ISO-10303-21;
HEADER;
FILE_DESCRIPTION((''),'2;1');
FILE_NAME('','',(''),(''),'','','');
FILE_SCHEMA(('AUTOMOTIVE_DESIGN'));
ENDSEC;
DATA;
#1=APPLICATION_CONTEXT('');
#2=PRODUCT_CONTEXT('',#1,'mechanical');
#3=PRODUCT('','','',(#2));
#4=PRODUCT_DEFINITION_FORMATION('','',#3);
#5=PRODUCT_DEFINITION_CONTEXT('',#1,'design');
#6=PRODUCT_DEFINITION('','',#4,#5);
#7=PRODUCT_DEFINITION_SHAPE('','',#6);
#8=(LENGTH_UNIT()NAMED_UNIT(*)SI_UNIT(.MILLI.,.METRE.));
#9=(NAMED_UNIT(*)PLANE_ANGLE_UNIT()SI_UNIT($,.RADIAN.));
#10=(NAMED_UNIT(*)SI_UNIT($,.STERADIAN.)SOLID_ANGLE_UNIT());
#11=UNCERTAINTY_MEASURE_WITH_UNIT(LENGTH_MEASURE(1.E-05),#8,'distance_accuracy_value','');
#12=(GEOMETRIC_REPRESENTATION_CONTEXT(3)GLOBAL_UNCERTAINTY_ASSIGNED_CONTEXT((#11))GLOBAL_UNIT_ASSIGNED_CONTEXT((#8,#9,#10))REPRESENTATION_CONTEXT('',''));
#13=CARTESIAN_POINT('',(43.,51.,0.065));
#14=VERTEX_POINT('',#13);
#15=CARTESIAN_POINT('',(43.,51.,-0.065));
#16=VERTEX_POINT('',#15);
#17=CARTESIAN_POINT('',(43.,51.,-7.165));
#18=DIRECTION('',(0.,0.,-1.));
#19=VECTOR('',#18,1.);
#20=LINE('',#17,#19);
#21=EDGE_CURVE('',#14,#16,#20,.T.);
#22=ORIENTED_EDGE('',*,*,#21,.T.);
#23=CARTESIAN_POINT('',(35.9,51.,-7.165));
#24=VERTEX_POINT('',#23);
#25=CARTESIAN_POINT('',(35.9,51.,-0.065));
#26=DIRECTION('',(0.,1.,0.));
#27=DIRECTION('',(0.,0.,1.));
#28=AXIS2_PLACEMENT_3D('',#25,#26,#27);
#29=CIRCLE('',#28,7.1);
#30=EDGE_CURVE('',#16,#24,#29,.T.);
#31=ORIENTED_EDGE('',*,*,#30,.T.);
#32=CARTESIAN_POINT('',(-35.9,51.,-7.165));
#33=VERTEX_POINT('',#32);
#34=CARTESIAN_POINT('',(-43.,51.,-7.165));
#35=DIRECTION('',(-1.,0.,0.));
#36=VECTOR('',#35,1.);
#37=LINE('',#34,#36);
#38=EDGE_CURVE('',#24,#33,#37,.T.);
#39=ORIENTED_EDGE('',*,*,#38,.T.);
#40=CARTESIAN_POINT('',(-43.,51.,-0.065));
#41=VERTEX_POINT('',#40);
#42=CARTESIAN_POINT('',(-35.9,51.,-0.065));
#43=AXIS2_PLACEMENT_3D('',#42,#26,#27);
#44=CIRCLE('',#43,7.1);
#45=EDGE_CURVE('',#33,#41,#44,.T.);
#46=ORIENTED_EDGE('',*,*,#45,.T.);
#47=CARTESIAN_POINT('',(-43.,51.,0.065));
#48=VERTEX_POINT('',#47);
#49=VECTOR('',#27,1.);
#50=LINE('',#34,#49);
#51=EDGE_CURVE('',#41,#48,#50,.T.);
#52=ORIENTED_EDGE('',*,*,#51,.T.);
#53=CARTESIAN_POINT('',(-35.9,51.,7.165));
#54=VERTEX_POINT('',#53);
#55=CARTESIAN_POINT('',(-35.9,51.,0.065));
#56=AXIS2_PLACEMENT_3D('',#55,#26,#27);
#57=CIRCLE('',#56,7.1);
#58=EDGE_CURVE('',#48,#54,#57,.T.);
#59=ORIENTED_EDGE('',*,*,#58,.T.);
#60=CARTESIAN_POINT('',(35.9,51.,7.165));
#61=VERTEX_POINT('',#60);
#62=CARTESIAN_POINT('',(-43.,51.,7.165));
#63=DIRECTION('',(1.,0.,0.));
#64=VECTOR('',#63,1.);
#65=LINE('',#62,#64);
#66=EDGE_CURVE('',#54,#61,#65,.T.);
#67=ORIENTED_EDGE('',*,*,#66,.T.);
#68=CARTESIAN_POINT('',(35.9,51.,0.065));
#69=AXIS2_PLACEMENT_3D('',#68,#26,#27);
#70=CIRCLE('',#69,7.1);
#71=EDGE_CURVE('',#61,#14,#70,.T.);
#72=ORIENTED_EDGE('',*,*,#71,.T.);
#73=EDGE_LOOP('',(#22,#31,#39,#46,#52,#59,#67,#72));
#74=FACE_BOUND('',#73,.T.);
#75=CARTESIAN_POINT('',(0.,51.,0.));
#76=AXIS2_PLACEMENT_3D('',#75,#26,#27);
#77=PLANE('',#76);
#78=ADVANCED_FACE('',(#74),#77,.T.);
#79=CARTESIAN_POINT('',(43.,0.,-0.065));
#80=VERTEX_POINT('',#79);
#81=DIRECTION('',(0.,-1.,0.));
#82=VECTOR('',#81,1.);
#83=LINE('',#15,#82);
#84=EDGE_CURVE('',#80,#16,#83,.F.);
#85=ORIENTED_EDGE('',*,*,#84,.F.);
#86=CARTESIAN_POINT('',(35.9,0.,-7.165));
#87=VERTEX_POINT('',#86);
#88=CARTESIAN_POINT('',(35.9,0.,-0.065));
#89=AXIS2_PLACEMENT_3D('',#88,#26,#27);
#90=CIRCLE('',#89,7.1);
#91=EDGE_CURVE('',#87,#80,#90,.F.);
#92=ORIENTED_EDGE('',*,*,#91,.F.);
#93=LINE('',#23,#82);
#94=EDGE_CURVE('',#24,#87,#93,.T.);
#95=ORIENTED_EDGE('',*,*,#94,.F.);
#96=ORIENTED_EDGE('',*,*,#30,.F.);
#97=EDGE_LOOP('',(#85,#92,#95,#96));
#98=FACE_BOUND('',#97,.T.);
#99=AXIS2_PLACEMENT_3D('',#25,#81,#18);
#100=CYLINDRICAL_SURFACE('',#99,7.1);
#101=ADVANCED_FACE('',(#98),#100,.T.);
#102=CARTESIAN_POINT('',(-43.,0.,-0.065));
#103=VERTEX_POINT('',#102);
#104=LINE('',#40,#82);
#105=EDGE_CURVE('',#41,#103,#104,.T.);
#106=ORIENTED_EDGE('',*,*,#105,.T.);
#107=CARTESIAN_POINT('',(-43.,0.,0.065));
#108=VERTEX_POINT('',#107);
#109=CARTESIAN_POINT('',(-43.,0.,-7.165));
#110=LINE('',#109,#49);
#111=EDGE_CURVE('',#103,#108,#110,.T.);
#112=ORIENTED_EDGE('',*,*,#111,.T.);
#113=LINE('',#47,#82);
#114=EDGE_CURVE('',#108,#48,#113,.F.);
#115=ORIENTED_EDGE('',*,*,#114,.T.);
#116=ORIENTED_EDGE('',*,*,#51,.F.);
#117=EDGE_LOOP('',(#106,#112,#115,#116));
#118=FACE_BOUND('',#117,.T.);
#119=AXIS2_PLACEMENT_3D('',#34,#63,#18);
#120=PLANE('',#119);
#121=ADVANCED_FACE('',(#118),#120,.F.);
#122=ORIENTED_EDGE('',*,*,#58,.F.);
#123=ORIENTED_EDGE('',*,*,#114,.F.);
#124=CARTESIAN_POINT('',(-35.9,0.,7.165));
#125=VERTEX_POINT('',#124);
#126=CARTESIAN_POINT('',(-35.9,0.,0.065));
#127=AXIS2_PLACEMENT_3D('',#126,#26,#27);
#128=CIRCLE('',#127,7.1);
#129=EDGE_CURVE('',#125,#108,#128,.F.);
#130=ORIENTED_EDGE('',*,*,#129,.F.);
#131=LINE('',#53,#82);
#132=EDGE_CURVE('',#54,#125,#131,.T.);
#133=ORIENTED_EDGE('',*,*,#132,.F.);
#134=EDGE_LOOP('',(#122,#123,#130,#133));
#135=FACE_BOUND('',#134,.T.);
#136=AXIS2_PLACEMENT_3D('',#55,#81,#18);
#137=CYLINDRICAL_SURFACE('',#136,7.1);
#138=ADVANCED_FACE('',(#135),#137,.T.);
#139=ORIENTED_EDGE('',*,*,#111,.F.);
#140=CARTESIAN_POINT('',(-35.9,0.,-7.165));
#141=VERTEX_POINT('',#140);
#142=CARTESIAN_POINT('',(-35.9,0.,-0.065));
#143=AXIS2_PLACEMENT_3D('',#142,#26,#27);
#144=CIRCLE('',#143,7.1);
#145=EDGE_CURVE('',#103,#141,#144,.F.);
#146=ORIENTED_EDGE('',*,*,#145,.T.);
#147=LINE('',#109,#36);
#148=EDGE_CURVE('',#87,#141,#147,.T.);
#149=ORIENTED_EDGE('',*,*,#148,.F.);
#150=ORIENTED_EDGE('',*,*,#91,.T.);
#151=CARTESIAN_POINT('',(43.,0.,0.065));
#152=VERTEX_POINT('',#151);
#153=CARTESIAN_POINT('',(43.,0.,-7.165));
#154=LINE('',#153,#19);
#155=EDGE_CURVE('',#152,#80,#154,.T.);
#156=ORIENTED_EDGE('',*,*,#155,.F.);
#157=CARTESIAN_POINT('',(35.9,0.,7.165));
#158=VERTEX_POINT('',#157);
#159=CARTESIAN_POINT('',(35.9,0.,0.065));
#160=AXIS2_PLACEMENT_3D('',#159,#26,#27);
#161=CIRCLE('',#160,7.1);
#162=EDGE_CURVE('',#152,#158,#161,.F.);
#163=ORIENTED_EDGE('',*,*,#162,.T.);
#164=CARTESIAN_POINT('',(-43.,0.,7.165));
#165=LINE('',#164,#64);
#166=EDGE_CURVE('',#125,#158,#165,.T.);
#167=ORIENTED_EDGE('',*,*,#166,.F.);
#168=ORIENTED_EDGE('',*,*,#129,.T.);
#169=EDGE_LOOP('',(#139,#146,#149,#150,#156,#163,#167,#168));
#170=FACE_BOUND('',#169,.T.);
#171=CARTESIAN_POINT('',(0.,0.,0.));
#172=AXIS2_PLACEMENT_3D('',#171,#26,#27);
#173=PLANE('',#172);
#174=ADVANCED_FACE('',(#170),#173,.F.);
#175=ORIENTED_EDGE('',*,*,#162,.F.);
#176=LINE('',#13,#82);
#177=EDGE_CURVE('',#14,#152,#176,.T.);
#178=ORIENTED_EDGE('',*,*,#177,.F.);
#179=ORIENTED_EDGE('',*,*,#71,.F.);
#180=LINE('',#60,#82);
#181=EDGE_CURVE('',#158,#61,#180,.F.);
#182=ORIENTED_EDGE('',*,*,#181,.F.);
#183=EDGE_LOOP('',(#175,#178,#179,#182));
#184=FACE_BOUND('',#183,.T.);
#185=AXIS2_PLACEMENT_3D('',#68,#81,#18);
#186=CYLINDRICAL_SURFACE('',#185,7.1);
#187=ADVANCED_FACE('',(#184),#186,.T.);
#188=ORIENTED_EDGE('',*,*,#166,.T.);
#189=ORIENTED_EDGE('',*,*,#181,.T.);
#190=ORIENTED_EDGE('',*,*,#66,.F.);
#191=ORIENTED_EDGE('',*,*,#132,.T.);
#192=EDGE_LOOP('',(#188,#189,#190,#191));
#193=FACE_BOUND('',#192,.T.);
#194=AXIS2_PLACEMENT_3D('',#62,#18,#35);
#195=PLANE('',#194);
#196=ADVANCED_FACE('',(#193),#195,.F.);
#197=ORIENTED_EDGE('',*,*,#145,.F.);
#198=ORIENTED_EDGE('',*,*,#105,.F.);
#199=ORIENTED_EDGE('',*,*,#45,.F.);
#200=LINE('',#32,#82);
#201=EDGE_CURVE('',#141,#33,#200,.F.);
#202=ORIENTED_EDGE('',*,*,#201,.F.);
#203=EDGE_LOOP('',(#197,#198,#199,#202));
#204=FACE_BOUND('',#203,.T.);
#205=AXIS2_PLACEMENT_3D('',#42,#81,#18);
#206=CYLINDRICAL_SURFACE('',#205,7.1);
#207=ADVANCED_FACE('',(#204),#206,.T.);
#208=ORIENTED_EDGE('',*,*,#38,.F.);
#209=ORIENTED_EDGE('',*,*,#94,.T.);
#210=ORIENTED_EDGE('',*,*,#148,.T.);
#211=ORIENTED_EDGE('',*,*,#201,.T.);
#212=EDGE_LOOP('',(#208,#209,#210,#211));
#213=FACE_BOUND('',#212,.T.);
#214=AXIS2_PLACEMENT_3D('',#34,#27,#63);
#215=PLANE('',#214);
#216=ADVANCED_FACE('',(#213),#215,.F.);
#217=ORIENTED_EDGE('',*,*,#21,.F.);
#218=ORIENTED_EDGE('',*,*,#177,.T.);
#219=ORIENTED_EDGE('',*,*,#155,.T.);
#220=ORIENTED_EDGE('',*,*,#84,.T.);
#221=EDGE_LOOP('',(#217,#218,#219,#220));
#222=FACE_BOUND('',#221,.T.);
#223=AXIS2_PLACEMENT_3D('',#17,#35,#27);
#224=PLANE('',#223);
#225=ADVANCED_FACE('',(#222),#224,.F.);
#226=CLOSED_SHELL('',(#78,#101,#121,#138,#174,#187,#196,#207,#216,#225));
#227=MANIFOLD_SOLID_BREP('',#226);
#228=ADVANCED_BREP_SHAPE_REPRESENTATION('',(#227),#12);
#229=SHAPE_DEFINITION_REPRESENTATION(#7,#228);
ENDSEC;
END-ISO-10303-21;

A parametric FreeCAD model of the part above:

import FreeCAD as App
import Part
import Sketcher

V = App.Vector
Q = App.Units.Quantity


def edges_at(feature, points):
    """Names of the edges that pass closest to the given points."""
    edges = feature.Shape.Edges
    near = lambda p: min(range(len(edges)), key=lambda i: edges[i].distToShape(Part.Vertex(*p))[0])
    return sorted({f"Edge{near(p) + 1}" for p in points})

doc = App.newDocument("Part")
params = doc.addObject("Spreadsheet::Sheet", "Params")
for row, (alias, value) in enumerate([
    ("sketch1_width", "86 mm"),
    ("sketch1_height", "14.33 mm"),
    ("pad1_length", "51 mm"),
    ("fillet_radius", "7.1 mm"),
], start=1):
    params.set(f"A{row}", alias)
    params.set(f"B{row}", "=" + value)
    params.setAlias(f"B{row}", alias)

body = doc.addObject("PartDesign::Body", "Body")

sketch1 = body.newObject("Sketcher::SketchObject", "Sketch")
sketch1.AttachmentSupport = (doc.getObject("XZ_Plane"), [""])
sketch1.MapMode = "FlatFace"
sketch1.addGeometry(Part.LineSegment(V(-43, -7, 0), V(-43, 7, 0)), False)
sketch1.addGeometry(Part.LineSegment(V(-43, 7, 0), V(43, 7, 0)), False)
sketch1.addGeometry(Part.LineSegment(V(43, 7, 0), V(43, -7, 0)), False)
sketch1.addGeometry(Part.LineSegment(V(43, -7, 0), V(-43, -7, 0)), False)
sketch1.addConstraint(Sketcher.Constraint("Coincident", 0, 2, 1, 1))
sketch1.addConstraint(Sketcher.Constraint("Coincident", 1, 2, 2, 1))
sketch1.addConstraint(Sketcher.Constraint("Coincident", 2, 2, 3, 1))
sketch1.addConstraint(Sketcher.Constraint("Coincident", 3, 2, 0, 1))
sketch1.addConstraint(Sketcher.Constraint("Vertical", 0))
sketch1.addConstraint(Sketcher.Constraint("Horizontal", 1))
sketch1.addConstraint(Sketcher.Constraint("Vertical", 2))
sketch1.addConstraint(Sketcher.Constraint("Horizontal", 3))
sketch1.addConstraint(Sketcher.Constraint("Symmetric", 0, 2, 2, 2, -1, 1))
sketch1.addConstraint(Sketcher.Constraint("DistanceX", 1, 1, 1, 2, Q("86 mm")))
sketch1.addConstraint(Sketcher.Constraint("DistanceY", 0, 1, 0, 2, Q("14.33 mm")))
sketch1.setExpression("Constraints[9]", "Params.sketch1_width")
sketch1.setExpression("Constraints[10]", "Params.sketch1_height")
pad1 = body.newObject("PartDesign::Pad", "Pad")
pad1.Profile = sketch1
pad1.setExpression("Length", "Params.pad1_length")
pad1.Reversed = True
doc.recompute()

fillet = body.newObject("PartDesign::Fillet", "Fillet")
fillet.Base = (pad1, edges_at(pad1, [
    (43, 25.5, 7.165),
    (-43, 25.5, 7.165),
    (-43, 25.5, -7.165),
    (43, 25.5, -7.165),
]))
fillet.setExpression("Radius", "Params.fillet_radius")

doc.recompute()
